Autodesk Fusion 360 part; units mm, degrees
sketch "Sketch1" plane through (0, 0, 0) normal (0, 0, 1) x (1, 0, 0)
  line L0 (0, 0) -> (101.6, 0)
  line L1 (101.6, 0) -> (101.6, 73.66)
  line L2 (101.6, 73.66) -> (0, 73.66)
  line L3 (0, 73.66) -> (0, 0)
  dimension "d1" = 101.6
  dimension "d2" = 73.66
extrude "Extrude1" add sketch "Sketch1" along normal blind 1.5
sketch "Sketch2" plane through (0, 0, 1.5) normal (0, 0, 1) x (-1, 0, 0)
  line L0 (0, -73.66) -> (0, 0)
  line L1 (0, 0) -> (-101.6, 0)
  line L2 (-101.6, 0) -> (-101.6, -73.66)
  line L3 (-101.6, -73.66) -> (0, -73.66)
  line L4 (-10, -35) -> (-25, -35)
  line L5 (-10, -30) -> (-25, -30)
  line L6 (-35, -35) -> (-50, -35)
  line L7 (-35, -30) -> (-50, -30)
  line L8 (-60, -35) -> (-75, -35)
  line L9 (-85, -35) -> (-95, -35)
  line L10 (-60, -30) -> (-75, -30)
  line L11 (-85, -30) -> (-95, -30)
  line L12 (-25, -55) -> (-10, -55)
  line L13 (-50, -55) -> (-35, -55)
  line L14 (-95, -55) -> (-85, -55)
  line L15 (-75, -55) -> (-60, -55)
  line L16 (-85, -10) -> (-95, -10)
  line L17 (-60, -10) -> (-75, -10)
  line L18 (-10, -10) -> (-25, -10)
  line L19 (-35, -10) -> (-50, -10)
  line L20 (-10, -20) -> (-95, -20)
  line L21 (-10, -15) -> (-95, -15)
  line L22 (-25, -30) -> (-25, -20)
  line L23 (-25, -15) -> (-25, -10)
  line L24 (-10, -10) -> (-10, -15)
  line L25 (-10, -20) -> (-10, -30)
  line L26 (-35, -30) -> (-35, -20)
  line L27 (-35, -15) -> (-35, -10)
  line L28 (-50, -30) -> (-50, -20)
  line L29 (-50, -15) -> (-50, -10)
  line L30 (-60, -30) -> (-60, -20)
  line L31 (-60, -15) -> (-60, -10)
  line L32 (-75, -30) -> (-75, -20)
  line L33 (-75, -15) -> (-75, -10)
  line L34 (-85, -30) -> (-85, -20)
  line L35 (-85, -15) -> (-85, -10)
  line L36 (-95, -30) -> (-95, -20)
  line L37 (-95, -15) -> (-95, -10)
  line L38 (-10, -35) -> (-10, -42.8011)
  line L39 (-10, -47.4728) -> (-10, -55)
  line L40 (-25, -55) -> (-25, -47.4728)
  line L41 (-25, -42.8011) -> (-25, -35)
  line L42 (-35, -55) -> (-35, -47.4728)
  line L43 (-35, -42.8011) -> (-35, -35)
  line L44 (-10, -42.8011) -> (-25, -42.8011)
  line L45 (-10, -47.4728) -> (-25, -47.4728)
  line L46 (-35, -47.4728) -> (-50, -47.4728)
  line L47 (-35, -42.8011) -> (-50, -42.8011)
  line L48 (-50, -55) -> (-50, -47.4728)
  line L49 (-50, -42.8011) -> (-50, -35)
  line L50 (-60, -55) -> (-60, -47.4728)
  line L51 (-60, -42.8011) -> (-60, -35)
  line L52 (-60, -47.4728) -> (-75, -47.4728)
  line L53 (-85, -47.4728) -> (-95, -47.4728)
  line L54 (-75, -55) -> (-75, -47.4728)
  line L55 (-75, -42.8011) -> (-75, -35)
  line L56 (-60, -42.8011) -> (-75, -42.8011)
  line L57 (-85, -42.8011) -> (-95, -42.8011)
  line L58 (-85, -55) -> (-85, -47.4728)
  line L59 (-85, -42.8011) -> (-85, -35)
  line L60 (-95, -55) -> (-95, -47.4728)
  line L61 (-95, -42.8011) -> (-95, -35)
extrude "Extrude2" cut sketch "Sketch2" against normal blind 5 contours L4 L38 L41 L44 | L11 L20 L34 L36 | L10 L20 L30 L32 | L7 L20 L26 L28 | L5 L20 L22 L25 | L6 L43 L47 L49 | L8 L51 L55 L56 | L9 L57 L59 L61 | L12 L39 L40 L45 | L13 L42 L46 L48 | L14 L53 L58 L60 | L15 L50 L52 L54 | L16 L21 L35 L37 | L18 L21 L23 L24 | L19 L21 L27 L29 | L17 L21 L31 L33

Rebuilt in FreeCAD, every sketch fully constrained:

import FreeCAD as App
import Part
import Sketcher

V = App.Vector


def add_polygon(sketch, points):
    """Adds a closed chain of lines whose ends are joined by coincident constraints."""
    first, n = sketch.GeometryCount, len(points)
    for a, b in zip(points, points[1:] + points[:1]):
        sketch.addGeometry(Part.LineSegment(App.Vector(*a, 0), App.Vector(*b, 0)), False)
    for i in range(n):
        sketch.addConstraint(Sketcher.Constraint("Coincident", first + i, 2, first + (i + 1) % n, 1))

doc = App.newDocument("Part")
body = doc.addObject("PartDesign::Body", "Body")

# Sketch on XY plane
sketch1 = body.newObject("Sketcher::SketchObject", "Sketch")
sketch1.AttachmentSupport = (doc.getObject("XY_Plane"), [""])
sketch1.MapMode = "FlatFace"
add_polygon(sketch1, [(0, 74), (0, 0), (102, 0), (102, 74)])  # lines 0-3
sketch1.addConstraint([
    Sketcher.Constraint("Vertical", 0),
    Sketcher.Constraint("Horizontal", 1),
    Sketcher.Constraint("Vertical", 2),
    Sketcher.Constraint("Horizontal", 3),
    Sketcher.Constraint("Coincident", 0, 2, -1, 1),
    Sketcher.Constraint("DistanceX", 1, 1, 1, 2, 101.6),
    Sketcher.Constraint("DistanceY", 0, 2, 0, 1, 73.66),
])
pad1 = body.newObject("PartDesign::Pad", "Pad")
pad1.Profile = sketch1
pad1.Length = 1.5

# Sketch on XY plane
sketch2 = body.newObject("Sketcher::SketchObject", "Sketch001")
sketch2.AttachmentSupport = (doc.getObject("XY_Plane"), [""])
sketch2.MapMode = "FlatFace"
sketch2.AttachmentOffset = App.Placement(V(0, 0, 1.5), App.Rotation())
add_polygon(sketch2, [(10, 43), (10, 35), (25, 35), (25, 43)])  # lines 0-3
add_polygon(sketch2, [(85, 30), (85, 20), (95, 20), (95, 30)])  # lines 4-7
add_polygon(sketch2, [(60, 30), (60, 20), (75, 20), (75, 30)])  # lines 8-11
add_polygon(sketch2, [(35, 30), (35, 20), (50, 20), (50, 30)])  # lines 12-15
add_polygon(sketch2, [(25, 30), (10, 30), (10, 20), (25, 20)])  # lines 16-19
add_polygon(sketch2, [(35, 43), (35, 35), (50, 35), (50, 43)])  # lines 20-23
add_polygon(sketch2, [(60, 43), (60, 35), (75, 35), (75, 43)])  # lines 24-27
add_polygon(sketch2, [(85, 43), (85, 35), (95, 35), (95, 43)])  # lines 28-31
add_polygon(sketch2, [(25, 47), (25, 55), (10, 55), (10, 47)])  # lines 32-35
add_polygon(sketch2, [(50, 47), (50, 55), (35, 55), (35, 47)])  # lines 36-39
add_polygon(sketch2, [(95, 47), (95, 55), (85, 55), (85, 47)])  # lines 40-43
add_polygon(sketch2, [(75, 47), (75, 55), (60, 55), (60, 47)])  # lines 44-47
add_polygon(sketch2, [(85, 15), (85, 10), (95, 10), (95, 15)])  # lines 48-51
add_polygon(sketch2, [(25, 10), (25, 15), (10, 15), (10, 10)])  # lines 52-55
add_polygon(sketch2, [(50, 10), (50, 15), (35, 15), (35, 10)])  # lines 56-59
add_polygon(sketch2, [(75, 10), (75, 15), (60, 15), (60, 10)])  # lines 60-63
sketch2.addConstraint([
    Sketcher.Constraint("Vertical", 0),
    Sketcher.Constraint("Horizontal", 1),
    Sketcher.Constraint("Vertical", 2),
    Sketcher.Constraint("Horizontal", 3),
    Sketcher.Constraint("Vertical", 4),
    Sketcher.Constraint("Horizontal", 5),
    Sketcher.Constraint("Vertical", 6),
    Sketcher.Constraint("Horizontal", 7),
    Sketcher.Constraint("Vertical", 8),
    Sketcher.Constraint("Horizontal", 9),
    Sketcher.Constraint("Vertical", 10),
    Sketcher.Constraint("Horizontal", 11),
    Sketcher.Constraint("Vertical", 12),
    Sketcher.Constraint("Horizontal", 13),
    Sketcher.Constraint("Vertical", 14),
    Sketcher.Constraint("Horizontal", 15),
    Sketcher.Constraint("Horizontal", 16),
    Sketcher.Constraint("Vertical", 17),
    Sketcher.Constraint("Horizontal", 18),
    Sketcher.Constraint("Vertical", 19),
    Sketcher.Constraint("Vertical", 20),
    Sketcher.Constraint("Horizontal", 21),
    Sketcher.Constraint("Vertical", 22),
    Sketcher.Constraint("Horizontal", 23),
    Sketcher.Constraint("Vertical", 24),
    Sketcher.Constraint("Horizontal", 25),
    Sketcher.Constraint("Vertical", 26),
    Sketcher.Constraint("Horizontal", 27),
    Sketcher.Constraint("Vertical", 28),
    Sketcher.Constraint("Horizontal", 29),
    Sketcher.Constraint("Vertical", 30),
    Sketcher.Constraint("Horizontal", 31),
    Sketcher.Constraint("Vertical", 32),
    Sketcher.Constraint("Horizontal", 33),
    Sketcher.Constraint("Vertical", 34),
    Sketcher.Constraint("Horizontal", 35),
    Sketcher.Constraint("Vertical", 36),
    Sketcher.Constraint("Horizontal", 37),
    Sketcher.Constraint("Vertical", 38),
    Sketcher.Constraint("Horizontal", 39),
    Sketcher.Constraint("Vertical", 40),
    Sketcher.Constraint("Horizontal", 41),
    Sketcher.Constraint("Vertical", 42),
    Sketcher.Constraint("Horizontal", 43),
    Sketcher.Constraint("Vertical", 44),
    Sketcher.Constraint("Horizontal", 45),
    Sketcher.Constraint("Vertical", 46),
    Sketcher.Constraint("Horizontal", 47),
    Sketcher.Constraint("Vertical", 48),
    Sketcher.Constraint("Horizontal", 49),
    Sketcher.Constraint("Vertical", 50),
    Sketcher.Constraint("Horizontal", 51),
    Sketcher.Constraint("Vertical", 52),
    Sketcher.Constraint("Horizontal", 53),
    Sketcher.Constraint("Vertical", 54),
    Sketcher.Constraint("Horizontal", 55),
    Sketcher.Constraint("Vertical", 56),
    Sketcher.Constraint("Horizontal", 57),
    Sketcher.Constraint("Vertical", 58),
    Sketcher.Constraint("Horizontal", 59),
    Sketcher.Constraint("Vertical", 60),
    Sketcher.Constraint("Horizontal", 61),
    Sketcher.Constraint("Vertical", 62),
    Sketcher.Constraint("Horizontal", 63),
    Sketcher.Constraint("Horizontal", 5, 2, 8, 2),
    Sketcher.Constraint("Horizontal", 7, 2, 10, 2),
    Sketcher.Constraint("Horizontal", 9, 2, 12, 2),
    Sketcher.Constraint("Horizontal", 11, 2, 14, 2),
    Sketcher.Constraint("Horizontal", 15, 2, 16, 2),
    Sketcher.Constraint("Horizontal", 13, 2, 17, 2),
    Sketcher.Constraint("Horizontal", 1, 2, 20, 2),
    Sketcher.Constraint("Horizontal", 3, 2, 22, 2),
    Sketcher.Constraint("Horizontal", 21, 2, 24, 2),
    Sketcher.Constraint("Horizontal", 23, 2, 26, 2),
    Sketcher.Constraint("Horizontal", 25, 2, 28, 2),
    Sketcher.Constraint("Horizontal", 27, 2, 30, 2),
    Sketcher.Constraint("Horizontal", 33, 2, 36, 2),
    Sketcher.Constraint("Horizontal", 35, 2, 38, 2),
    Sketcher.Constraint("Horizontal", 37, 2, 40, 2),
    Sketcher.Constraint("Horizontal", 39, 2, 42, 2),
    Sketcher.Constraint("Horizontal", 41, 2, 44, 2),
    Sketcher.Constraint("Horizontal", 43, 2, 46, 2),
    Sketcher.Constraint("Horizontal", 51, 2, 52, 2),
    Sketcher.Constraint("Horizontal", 49, 2, 54, 2),
    Sketcher.Constraint("Horizontal", 53, 2, 56, 2),
    Sketcher.Constraint("Horizontal", 55, 2, 58, 2),
    Sketcher.Constraint("Horizontal", 57, 2, 60, 2),
    Sketcher.Constraint("Horizontal", 59, 2, 62, 2),
    Sketcher.Constraint("Vertical", 3, 2, 16, 2),
    Sketcher.Constraint("Vertical", 2, 2, 18, 2),
    Sketcher.Constraint("Vertical", 15, 2, 20, 2),
    Sketcher.Constraint("Vertical", 14, 2, 21, 2),
    Sketcher.Constraint("Vertical", 11, 2, 24, 2),
    Sketcher.Constraint("Vertical", 10, 2, 25, 2),
    Sketcher.Constraint("Vertical", 7, 2, 28, 2),
    Sketcher.Constraint("Vertical", 6, 2, 29, 2),
    Sketcher.Constraint("Vertical", 19, 2, 32, 2),
    Sketcher.Constraint("Vertical", 17, 2, 33, 2),
    Sketcher.Constraint("Vertical", 22, 2, 36, 2),
    Sketcher.Constraint("Vertical", 23, 2, 37, 2),
    Sketcher.Constraint("Vertical", 30, 2, 40, 2),
    Sketcher.Constraint("Vertical", 31, 2, 41, 2),
    Sketcher.Constraint("Vertical", 26, 2, 44, 2),
    Sketcher.Constraint("Vertical", 27, 2, 45, 2),
    Sketcher.Constraint("Vertical", 42, 2, 48, 2),
    Sketcher.Constraint("Vertical", 43, 2, 49, 2),
    Sketcher.Constraint("Vertical", 35, 2, 52, 2),
    Sketcher.Constraint("Vertical", 34, 2, 53, 2),
    Sketcher.Constraint("Vertical", 39, 2, 56, 2),
    Sketcher.Constraint("Vertical", 38, 2, 57, 2),
    Sketcher.Constraint("Vertical", 47, 2, 60, 2),
    Sketcher.Constraint("Vertical", 46, 2, 61, 2),
    Sketcher.Constraint("Equal", 3, 9),
    Sketcher.Constraint("Equal", 11, 13),
    Sketcher.Constraint("Equal", 51, 4),
    Sketcher.Constraint("DistanceX", 1, 1, 1, 2, 15.0),
    Sketcher.Constraint("DistanceX", 5, 1, 5, 2, 10.0),
    Sketcher.Constraint("DistanceY", 48, 2, 48, 1, 5.0),
    Sketcher.Constraint("DistanceX", -1, 1, 0, 2, 10.0),
    Sketcher.Constraint("DistanceY", -1, 1, 0, 2, 35.0),
    Sketcher.Constraint("DistanceX", -1, 1, 4, 2, 85.0),
    Sketcher.Constraint("DistanceY", -1, 1, 4, 2, 20.0),
    Sketcher.Constraint("DistanceX", -1, 1, 8, 2, 60.0),
    Sketcher.Constraint("DistanceX", -1, 1, 12, 2, 35.0),
    Sketcher.Constraint("DistanceY", -1, 1, 32, 2, 55.0),
    Sketcher.Constraint("DistanceY", -1, 1, 48, 2, 10.0),
    Sketcher.Constraint("DistanceY", 0, 2, 0, 1, 7.801),
    Sketcher.Constraint("DistanceY", 32, 1, 32, 2, 7.5272),
])
pocket1 = body.newObject("PartDesign::Pocket", "Pocket")
pocket1.Profile = sketch2
pocket1.Length = 5

doc.recompute()
